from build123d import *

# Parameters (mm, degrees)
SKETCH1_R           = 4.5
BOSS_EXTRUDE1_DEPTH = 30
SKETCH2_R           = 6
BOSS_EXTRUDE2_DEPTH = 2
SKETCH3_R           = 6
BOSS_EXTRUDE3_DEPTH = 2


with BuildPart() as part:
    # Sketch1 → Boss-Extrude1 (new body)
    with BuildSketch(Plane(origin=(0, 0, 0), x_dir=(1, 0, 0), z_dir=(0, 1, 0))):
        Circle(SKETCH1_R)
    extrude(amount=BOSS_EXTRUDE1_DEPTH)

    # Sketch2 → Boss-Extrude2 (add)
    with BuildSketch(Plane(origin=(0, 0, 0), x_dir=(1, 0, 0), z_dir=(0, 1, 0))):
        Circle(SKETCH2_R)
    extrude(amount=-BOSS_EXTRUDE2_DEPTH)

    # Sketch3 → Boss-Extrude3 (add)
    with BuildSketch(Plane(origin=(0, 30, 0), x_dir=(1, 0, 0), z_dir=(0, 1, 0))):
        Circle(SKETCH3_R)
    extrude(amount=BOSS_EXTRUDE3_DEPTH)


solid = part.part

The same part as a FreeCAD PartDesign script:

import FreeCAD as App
import Part
import Sketcher

V = App.Vector

doc = App.newDocument("Part")
body = doc.addObject("PartDesign::Body", "Body")

sketch1 = body.newObject("Sketcher::SketchObject", "Sketch")
sketch1.AttachmentSupport = (doc.getObject("XZ_Plane"), [""])
sketch1.MapMode = "FlatFace"
sketch1.addGeometry(Part.Circle(V(0, 0, 0), V(0, 0, 1), 4.5), False)
sketch1.addConstraint(Sketcher.Constraint("Coincident", 0, 3, -1, 1))
sketch1.addConstraint(Sketcher.Constraint("Diameter", 0, 9.0))
pad1 = body.newObject("PartDesign::Pad", "Pad")
pad1.Profile = sketch1
pad1.Length = 30
pad1.Reversed = True

sketch2 = body.newObject("Sketcher::SketchObject", "Sketch001")
sketch2.AttachmentSupport = (doc.getObject("XZ_Plane"), [""])
sketch2.MapMode = "FlatFace"
sketch2.addGeometry(Part.Circle(V(0, 0, 0), V(0, 0, 1), 6), False)
sketch2.addConstraint(Sketcher.Constraint("Coincident", 0, 3, -1, 1))
sketch2.addConstraint(Sketcher.Constraint("Diameter", 0, 12.0))
pad2 = body.newObject("PartDesign::Pad", "Pad001")
pad2.Profile = sketch2
pad2.Length = 2

sketch3 = body.newObject("Sketcher::SketchObject", "Sketch002")
sketch3.AttachmentSupport = (doc.getObject("XZ_Plane"), [""])
sketch3.MapMode = "FlatFace"
sketch3.AttachmentOffset = App.Placement(V(0, 0, -30), App.Rotation())
sketch3.addGeometry(Part.Circle(V(0, 0, 0), V(0, 0, 1), 6), False)
sketch3.addConstraint(Sketcher.Constraint("Coincident", 0, 3, -1, 1))
sketch3.addConstraint(Sketcher.Constraint("Diameter", 0, 12.0))
pad3 = body.newObject("PartDesign::Pad", "Pad002")
pad3.Profile = sketch3
pad3.Length = 2
pad3.Reversed = True

doc.recompute()
